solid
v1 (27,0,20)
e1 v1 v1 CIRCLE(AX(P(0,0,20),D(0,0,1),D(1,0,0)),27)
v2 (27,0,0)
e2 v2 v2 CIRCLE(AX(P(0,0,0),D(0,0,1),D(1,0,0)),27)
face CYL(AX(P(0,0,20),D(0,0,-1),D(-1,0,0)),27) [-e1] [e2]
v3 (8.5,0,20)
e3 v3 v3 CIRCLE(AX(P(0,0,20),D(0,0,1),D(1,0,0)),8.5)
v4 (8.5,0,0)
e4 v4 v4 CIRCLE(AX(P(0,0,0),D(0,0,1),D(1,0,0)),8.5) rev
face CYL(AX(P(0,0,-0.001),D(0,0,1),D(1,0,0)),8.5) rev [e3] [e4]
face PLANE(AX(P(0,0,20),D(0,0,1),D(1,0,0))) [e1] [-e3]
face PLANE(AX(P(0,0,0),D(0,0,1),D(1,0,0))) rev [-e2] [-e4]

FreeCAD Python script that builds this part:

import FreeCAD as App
import Part
import Sketcher

V = App.Vector
Q = App.Units.Quantity

doc = App.newDocument("Part")
params = doc.addObject("Spreadsheet::Sheet", "Params")
for row, (alias, value) in enumerate([
    ("sketch1_diameter", "54 mm"),
    ("pad1_length", "20 mm"),
    ("sketch2_diameter", "17 mm"),
], start=1):
    params.set(f"A{row}", alias)
    params.set(f"B{row}", "=" + value)
    params.setAlias(f"B{row}", alias)

body = doc.addObject("PartDesign::Body", "Body")

sketch1 = body.newObject("Sketcher::SketchObject", "Sketch")
sketch1.AttachmentSupport = (doc.getObject("XY_Plane"), [""])
sketch1.MapMode = "FlatFace"
sketch1.addGeometry(Part.Circle(V(0, 0, 0), V(0, 0, 1), 27), False)
sketch1.addConstraint(Sketcher.Constraint("Coincident", 0, 3, -1, 1))
sketch1.addConstraint(Sketcher.Constraint("Diameter", 0, Q("54 mm")))
sketch1.setExpression("Constraints[1]", "Params.sketch1_diameter")
pad1 = body.newObject("PartDesign::Pad", "Pad")
pad1.Profile = sketch1
pad1.setExpression("Length", "Params.pad1_length")

sketch2 = body.newObject("Sketcher::SketchObject", "Sketch001")
sketch2.AttachmentSupport = (doc.getObject("XY_Plane"), [""])
sketch2.MapMode = "FlatFace"
sketch2.AttachmentOffset = App.Placement(V(0, 0, 20), App.Rotation())
sketch2.addGeometry(Part.Circle(V(0, 0, 0), V(0, 0, 1), 8), False)
sketch2.addConstraint(Sketcher.Constraint("Coincident", 0, 3, -1, 1))
sketch2.addConstraint(Sketcher.Constraint("Diameter", 0, Q("17 mm")))
sketch2.setExpression("Constraints[1]", "Params.sketch2_diameter")
pocket1 = body.newObject("PartDesign::Pocket", "Pocket")
pocket1.Profile = sketch2
pocket1.Type = "UpToFirst"

doc.recompute()
